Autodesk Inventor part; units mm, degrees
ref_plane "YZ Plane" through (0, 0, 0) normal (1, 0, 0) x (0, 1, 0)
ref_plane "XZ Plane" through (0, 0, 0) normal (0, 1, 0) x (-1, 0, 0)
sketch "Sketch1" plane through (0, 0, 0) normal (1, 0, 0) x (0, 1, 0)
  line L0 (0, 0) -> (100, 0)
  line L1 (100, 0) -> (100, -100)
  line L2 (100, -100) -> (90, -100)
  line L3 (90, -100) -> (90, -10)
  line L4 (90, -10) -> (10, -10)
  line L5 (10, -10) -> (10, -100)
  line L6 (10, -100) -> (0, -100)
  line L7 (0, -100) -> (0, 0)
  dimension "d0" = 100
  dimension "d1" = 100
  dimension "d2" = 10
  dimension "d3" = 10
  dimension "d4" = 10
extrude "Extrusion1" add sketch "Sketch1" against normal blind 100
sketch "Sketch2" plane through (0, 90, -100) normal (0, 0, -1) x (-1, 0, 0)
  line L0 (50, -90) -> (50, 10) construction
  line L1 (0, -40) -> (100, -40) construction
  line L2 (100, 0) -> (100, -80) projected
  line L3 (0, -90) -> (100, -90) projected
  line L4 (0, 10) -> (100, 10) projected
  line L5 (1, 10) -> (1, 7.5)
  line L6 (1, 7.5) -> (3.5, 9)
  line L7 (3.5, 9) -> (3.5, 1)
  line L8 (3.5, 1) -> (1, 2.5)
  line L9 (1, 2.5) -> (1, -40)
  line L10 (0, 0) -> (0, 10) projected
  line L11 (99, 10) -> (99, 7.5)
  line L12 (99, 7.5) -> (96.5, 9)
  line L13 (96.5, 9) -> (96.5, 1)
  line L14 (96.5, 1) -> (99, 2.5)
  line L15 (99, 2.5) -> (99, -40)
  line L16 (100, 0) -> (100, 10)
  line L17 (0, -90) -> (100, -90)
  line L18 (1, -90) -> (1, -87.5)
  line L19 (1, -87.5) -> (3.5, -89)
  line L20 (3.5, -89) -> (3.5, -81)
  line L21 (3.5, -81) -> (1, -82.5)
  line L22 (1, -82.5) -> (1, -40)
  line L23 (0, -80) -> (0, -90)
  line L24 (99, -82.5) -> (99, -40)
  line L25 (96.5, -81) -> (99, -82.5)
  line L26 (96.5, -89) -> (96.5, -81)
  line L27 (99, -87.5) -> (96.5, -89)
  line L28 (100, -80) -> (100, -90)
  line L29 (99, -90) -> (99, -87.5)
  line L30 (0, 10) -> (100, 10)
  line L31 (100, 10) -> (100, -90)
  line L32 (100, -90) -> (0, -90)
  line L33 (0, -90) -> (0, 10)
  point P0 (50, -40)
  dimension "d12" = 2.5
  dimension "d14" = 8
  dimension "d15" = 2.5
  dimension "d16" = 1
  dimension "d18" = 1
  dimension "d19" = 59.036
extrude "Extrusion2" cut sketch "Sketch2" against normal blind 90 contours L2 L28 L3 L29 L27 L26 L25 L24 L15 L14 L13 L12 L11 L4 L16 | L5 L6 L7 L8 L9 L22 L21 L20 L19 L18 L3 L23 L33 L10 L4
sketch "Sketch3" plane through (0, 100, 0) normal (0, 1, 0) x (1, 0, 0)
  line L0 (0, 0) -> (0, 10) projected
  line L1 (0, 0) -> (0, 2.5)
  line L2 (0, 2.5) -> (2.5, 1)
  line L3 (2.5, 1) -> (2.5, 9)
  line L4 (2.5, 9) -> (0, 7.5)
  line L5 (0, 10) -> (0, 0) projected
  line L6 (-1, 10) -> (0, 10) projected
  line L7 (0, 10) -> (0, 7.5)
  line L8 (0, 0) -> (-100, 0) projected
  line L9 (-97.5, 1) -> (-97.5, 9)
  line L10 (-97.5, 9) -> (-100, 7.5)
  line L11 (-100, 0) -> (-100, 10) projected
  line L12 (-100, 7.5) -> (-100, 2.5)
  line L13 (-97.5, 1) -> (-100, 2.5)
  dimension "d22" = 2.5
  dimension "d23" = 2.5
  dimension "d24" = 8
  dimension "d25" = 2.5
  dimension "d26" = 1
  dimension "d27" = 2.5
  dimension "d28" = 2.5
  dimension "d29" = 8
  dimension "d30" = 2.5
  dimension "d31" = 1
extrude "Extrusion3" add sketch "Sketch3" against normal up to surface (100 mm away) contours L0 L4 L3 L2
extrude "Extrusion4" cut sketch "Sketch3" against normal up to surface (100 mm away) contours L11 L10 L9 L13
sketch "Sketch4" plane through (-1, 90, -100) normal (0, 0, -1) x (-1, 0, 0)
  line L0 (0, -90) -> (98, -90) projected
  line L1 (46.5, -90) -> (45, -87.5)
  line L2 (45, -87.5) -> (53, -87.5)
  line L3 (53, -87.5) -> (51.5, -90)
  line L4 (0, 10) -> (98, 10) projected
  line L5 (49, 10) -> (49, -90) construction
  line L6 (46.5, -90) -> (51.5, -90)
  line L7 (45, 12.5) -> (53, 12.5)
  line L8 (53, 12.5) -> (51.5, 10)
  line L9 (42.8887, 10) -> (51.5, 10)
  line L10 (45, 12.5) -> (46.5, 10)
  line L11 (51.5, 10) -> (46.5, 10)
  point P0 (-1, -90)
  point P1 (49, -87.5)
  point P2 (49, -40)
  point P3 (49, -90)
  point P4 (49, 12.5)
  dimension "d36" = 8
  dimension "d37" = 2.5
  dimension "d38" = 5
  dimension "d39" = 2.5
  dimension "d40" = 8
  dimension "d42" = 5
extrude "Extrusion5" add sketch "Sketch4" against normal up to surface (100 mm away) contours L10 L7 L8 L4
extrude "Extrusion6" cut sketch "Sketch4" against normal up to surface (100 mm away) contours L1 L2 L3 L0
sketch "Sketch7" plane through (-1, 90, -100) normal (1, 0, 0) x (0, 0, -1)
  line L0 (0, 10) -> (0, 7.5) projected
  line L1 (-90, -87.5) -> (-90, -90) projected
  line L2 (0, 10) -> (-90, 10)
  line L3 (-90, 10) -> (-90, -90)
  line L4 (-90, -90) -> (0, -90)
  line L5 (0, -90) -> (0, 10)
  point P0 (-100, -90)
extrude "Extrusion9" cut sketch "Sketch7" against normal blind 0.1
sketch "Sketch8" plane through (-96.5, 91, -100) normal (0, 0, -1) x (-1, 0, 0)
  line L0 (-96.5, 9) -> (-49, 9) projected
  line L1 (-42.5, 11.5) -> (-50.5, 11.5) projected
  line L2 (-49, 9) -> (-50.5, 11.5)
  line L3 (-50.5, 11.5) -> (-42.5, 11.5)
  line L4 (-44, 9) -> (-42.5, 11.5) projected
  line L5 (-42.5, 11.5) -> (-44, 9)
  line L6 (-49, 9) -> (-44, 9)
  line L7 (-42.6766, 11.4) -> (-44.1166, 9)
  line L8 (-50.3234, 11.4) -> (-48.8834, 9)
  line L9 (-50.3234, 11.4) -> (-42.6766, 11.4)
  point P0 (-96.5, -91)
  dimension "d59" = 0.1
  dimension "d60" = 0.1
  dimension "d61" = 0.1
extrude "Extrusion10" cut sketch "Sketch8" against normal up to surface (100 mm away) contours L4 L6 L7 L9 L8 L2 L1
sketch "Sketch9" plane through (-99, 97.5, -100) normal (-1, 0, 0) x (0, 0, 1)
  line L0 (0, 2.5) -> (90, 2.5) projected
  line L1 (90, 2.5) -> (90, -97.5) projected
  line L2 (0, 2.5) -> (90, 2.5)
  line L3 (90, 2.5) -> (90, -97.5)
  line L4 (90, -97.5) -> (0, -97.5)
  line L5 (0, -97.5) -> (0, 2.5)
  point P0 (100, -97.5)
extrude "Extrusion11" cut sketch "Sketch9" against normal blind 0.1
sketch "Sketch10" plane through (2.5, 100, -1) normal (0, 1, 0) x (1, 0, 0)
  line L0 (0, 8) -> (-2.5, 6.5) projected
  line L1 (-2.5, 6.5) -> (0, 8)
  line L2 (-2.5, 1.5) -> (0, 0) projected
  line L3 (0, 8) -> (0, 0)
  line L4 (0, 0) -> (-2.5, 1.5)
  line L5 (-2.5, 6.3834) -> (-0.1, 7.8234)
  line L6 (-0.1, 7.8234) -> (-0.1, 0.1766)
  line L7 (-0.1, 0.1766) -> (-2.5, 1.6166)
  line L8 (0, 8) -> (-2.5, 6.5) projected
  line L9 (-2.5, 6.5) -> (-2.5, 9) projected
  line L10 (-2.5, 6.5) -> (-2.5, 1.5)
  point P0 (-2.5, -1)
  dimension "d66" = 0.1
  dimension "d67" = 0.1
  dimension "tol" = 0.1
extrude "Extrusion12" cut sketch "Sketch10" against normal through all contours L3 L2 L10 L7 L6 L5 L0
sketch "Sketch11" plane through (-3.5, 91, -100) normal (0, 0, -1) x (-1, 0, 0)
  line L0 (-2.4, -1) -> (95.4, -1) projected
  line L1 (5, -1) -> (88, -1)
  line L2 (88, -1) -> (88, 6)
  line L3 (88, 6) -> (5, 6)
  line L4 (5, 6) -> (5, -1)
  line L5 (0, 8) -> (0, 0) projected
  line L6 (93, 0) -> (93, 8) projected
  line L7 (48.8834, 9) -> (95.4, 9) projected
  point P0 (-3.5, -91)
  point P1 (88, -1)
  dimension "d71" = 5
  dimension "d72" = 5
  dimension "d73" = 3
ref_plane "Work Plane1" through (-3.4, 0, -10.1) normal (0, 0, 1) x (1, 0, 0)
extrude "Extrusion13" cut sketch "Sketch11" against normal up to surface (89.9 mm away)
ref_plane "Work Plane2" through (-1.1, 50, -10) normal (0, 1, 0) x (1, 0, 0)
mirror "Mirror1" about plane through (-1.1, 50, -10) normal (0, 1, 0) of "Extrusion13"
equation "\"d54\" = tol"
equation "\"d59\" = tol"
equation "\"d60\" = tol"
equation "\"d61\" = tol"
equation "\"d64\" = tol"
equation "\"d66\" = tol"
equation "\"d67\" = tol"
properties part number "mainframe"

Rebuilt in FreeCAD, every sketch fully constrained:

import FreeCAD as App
import Part
import Sketcher

V = App.Vector
Q = App.Units.Quantity


def add_polygon(sketch, points):
    """Adds a closed chain of lines whose ends are joined by coincident constraints."""
    first, n = sketch.GeometryCount, len(points)
    for a, b in zip(points, points[1:] + points[:1]):
        sketch.addGeometry(Part.LineSegment(App.Vector(*a, 0), App.Vector(*b, 0)), False)
    for i in range(n):
        sketch.addConstraint(Sketcher.Constraint("Coincident", first + i, 2, first + (i + 1) % n, 1))

doc = App.newDocument("Part")
body = doc.addObject("PartDesign::Body", "Body")

# Sketch on YZ plane
sketch1 = body.newObject("Sketcher::SketchObject", "Sketch")
sketch1.AttachmentSupport = (doc.getObject("YZ_Plane"), [""])
sketch1.MapMode = "FlatFace"
add_polygon(sketch1, [(100, 0), (0, 0), (0, -100), (10, -100), (10, -10), (90, -10), (90, -100), (100, -100)])  # lines 0-7
sketch1.addConstraint([
    Sketcher.Constraint("Horizontal", 0),
    Sketcher.Constraint("Vertical", 1),
    Sketcher.Constraint("Horizontal", 2),
    Sketcher.Constraint("Vertical", 3),
    Sketcher.Constraint("Horizontal", 4),
    Sketcher.Constraint("Vertical", 5),
    Sketcher.Constraint("Horizontal", 6),
    Sketcher.Constraint("Vertical", 7),
    Sketcher.Constraint("Coincident", 0, 2, -1, 1),
    Sketcher.Constraint("Horizontal", 2, 2, 5, 2),
    Sketcher.Constraint("Equal", 2, 6),
    Sketcher.Constraint("Equal", 0, 1),
    Sketcher.Constraint("DistanceX", 0, 2, 0, 1, Q("100 mm")),
    Sketcher.Constraint("DistanceX", 2, 1, 2, 2, Q("10 mm")),
    Sketcher.Constraint("DistanceY", 3, 2, -1, 1, Q("10 mm")),
])
pad1 = body.newObject("PartDesign::Pad", "Pad")
pad1.Profile = sketch1
pad1.Length = 100
pad1.Reversed = True

# Sketch on XY plane
sketch2 = body.newObject("Sketcher::SketchObject", "Sketch001")
sketch2.AttachmentSupport = (doc.getObject("XY_Plane"), [""])
sketch2.MapMode = "FlatFace"
sketch2.AttachmentOffset = App.Placement(V(0, 0, -100), App.Rotation())
add_polygon(sketch2, [(-100, 0), (-100, 100), (-99, 100), (-99, 97.5), (-96.5, 99), (-96.5, 91), (-99, 92.5), (-99, 7.5), (-96.5, 9), (-96.5, 1), (-99, 2.5), (-99, 0)])  # lines 0-11
add_polygon(sketch2, [(-1, 97.5), (-1, 100), (0, 100), (0, 0), (-1, 0), (-1, 2.5), (-3.5, 1), (-3.5, 9), (-1, 7.5), (-1, 92.5), (-3.5, 91), (-3.5, 99)])  # lines 12-23
sketch2.addConstraint([
    Sketcher.Constraint("Vertical", 0),
    Sketcher.Constraint("Horizontal", 1),
    Sketcher.Constraint("Vertical", 2),
    Sketcher.Constraint("Vertical", 4),
    Sketcher.Constraint("Vertical", 6),
    Sketcher.Constraint("Vertical", 8),
    Sketcher.Constraint("Vertical", 10),
    Sketcher.Constraint("Horizontal", 11),
    Sketcher.Constraint("Vertical", 12),
    Sketcher.Constraint("Horizontal", 13),
    Sketcher.Constraint("Vertical", 14),
    Sketcher.Constraint("Horizontal", 15),
    Sketcher.Constraint("Vertical", 16),
    Sketcher.Constraint("Vertical", 18),
    Sketcher.Constraint("Vertical", 20),
    Sketcher.Constraint("Vertical", 22),
    Sketcher.Constraint("Coincident", 14, 2, -1, 1),
    Sketcher.Constraint("PointOnObject", 10, 2, -1),
    Sketcher.Constraint("Parallel", 3, 7),
    Sketcher.Constraint("Parallel", 5, 9),
    Sketcher.Constraint("Parallel", 7, 17),
    Sketcher.Constraint("Parallel", 9, 19),
    Sketcher.Constraint("Parallel", 17, 21),
    Sketcher.Constraint("Parallel", 19, 23),
    Sketcher.Constraint("Horizontal", 1, 2, 12, 2),
    Sketcher.Constraint("Horizontal", 9, 2, 16, 2),
    Sketcher.Constraint("Horizontal", 8, 2, 17, 2),
    Sketcher.Constraint("Horizontal", 7, 2, 18, 2),
    Sketcher.Constraint("Horizontal", 6, 2, 19, 2),
    Sketcher.Constraint("Horizontal", 5, 2, 20, 2),
    Sketcher.Constraint("Horizontal", 4, 2, 21, 2),
    Sketcher.Constraint("Horizontal", 3, 2, 22, 2),
    Sketcher.Constraint("Horizontal", 2, 2, 23, 2),
    Sketcher.Constraint("Vertical", 2, 2, 5, 2),
    Sketcher.Constraint("Vertical", 4, 2, 7, 2),
    Sketcher.Constraint("Vertical", 6, 2, 9, 2),
    Sketcher.Constraint("Vertical", 12, 2, 15, 2),
    Sketcher.Constraint("Equal", 11, 13),
    Sketcher.Constraint("Equal", 4, 8),
    Sketcher.Constraint("Equal", 2, 10),
    Sketcher.Constraint("DistanceX", 1, 1, 1, 2, Q("1 mm")),
    Sketcher.Constraint("DistanceY", 4, 2, 4, 1, Q("8 mm")),
    Sketcher.Constraint("DistanceY", 2, 2, 2, 1, Q("2.5 mm")),
    Sketcher.Constraint("DistanceY", -1, 1, 8, 2, Q("1 mm")),
    Sketcher.Constraint("DistanceX", 1, 2, 3, 2, Q("2.5 mm")),
    Sketcher.Constraint("DistanceY", 0, 1, 0, 2, Q("100 mm")),
    Sketcher.Constraint("DistanceX", 0, 2, -1, 1, Q("100 mm")),
])
pocket1 = body.newObject("PartDesign::Pocket", "Pocket")
pocket1.Profile = sketch2
pocket1.Length = 90
pocket1.Reversed = True

# Sketch on XZ plane
sketch3 = body.newObject("Sketcher::SketchObject", "Sketch002")
sketch3.AttachmentSupport = (doc.getObject("XZ_Plane"), [""])
sketch3.MapMode = "FlatFace"
sketch3.AttachmentOffset = App.Placement(V(0, 0, -100), App.Rotation())
add_polygon(sketch3, [(0, -7.5), (0, -2.5), (2.5, -1), (2.5, -9)])  # lines 0-3
sketch3.addConstraint([
    Sketcher.Constraint("Vertical", 0),
    Sketcher.Constraint("Vertical", 2),
    Sketcher.Constraint("PointOnObject", 0, 2, -2),
    Sketcher.Constraint("Equal", 1, 3),
    Sketcher.Constraint("DistanceY", 2, 2, 2, 1, Q("8 mm")),
    Sketcher.Constraint("DistanceY", 1, 2, -1, 1, Q("1 mm")),
    Sketcher.Constraint("DistanceY", 0, 2, -1, 1, Q("2.5 mm")),
    Sketcher.Constraint("DistanceX", -1, 1, 1, 2, Q("2.5 mm")),
])
pad2 = body.newObject("PartDesign::Pad", "Pad001")
pad2.Profile = sketch3
pad2.Length = 100

# Sketch on XZ plane
sketch4 = body.newObject("Sketcher::SketchObject", "Sketch003")
sketch4.AttachmentSupport = (doc.getObject("XZ_Plane"), [""])
sketch4.MapMode = "FlatFace"
sketch4.AttachmentOffset = App.Placement(V(0, 0, -100), App.Rotation())
add_polygon(sketch4, [(-100, -7.5), (-100, -2.5), (-97.5, -1), (-97.5, -9)])  # lines 0-3
sketch4.addConstraint([
    Sketcher.Constraint("Vertical", 0),
    Sketcher.Constraint("Vertical", 2),
    Sketcher.Constraint("Equal", 1, 3),
    Sketcher.Constraint("DistanceY", 2, 2, 2, 1, Q("8 mm")),
    Sketcher.Constraint("DistanceY", 1, 2, -1, 1, Q("1 mm")),
    Sketcher.Constraint("DistanceY", 0, 2, -1, 1, Q("2.5 mm")),
    Sketcher.Constraint("DistanceX", 0, 2, 1, 2, Q("2.5 mm")),
    Sketcher.Constraint("DistanceX", 0, 2, -1, 1, Q("100 mm")),
])
pocket2 = body.newObject("PartDesign::Pocket", "Pocket001")
pocket2.Profile = sketch4
pocket2.Length = 100
pocket2.Reversed = True

# Sketch on XY plane
sketch5 = body.newObject("Sketcher::SketchObject", "Sketch004")
sketch5.AttachmentSupport = (doc.getObject("XY_Plane"), [""])
sketch5.MapMode = "FlatFace"
sketch5.AttachmentOffset = App.Placement(V(0, 0, -100), App.Rotation())
add_polygon(sketch5, [(-46, 102.5), (-47.5, 100), (-52.5, 100), (-54, 102.5)])  # lines 0-3
sketch5.addConstraint([
    Sketcher.Constraint("Horizontal", 1),
    Sketcher.Constraint("Horizontal", 3),
    Sketcher.Constraint("Equal", 0, 2),
    Sketcher.Constraint("DistanceX", 1, 2, 1, 1, Q("5 mm")),
    Sketcher.Constraint("DistanceX", 3, 1, 3, 2, Q("8 mm")),
    Sketcher.Constraint("DistanceY", 1, 2, 2, 2, Q("2.5 mm")),
    Sketcher.Constraint("DistanceY", -1, 1, 0, 2, Q("100 mm")),
    Sketcher.Constraint("DistanceX", 2, 2, -1, 1, Q("54 mm")),
])
pad3 = body.newObject("PartDesign::Pad", "Pad002")
pad3.Profile = sketch5
pad3.Length = 100

# Sketch on XY plane
sketch6 = body.newObject("Sketcher::SketchObject", "Sketch005")
sketch6.AttachmentSupport = (doc.getObject("XY_Plane"), [""])
sketch6.MapMode = "FlatFace"
sketch6.AttachmentOffset = App.Placement(V(0, 0, -100), App.Rotation())
add_polygon(sketch6, [(-46, 2.5), (-47.5, 0), (-52.5, 0), (-54, 2.5)])  # lines 0-3
sketch6.addConstraint([
    Sketcher.Constraint("Horizontal", 1),
    Sketcher.Constraint("Horizontal", 3),
    Sketcher.Constraint("PointOnObject", 0, 2, -1),
    Sketcher.Constraint("Equal", 0, 2),
    Sketcher.Constraint("DistanceX", 1, 2, 1, 1, Q("5 mm")),
    Sketcher.Constraint("DistanceX", 3, 1, 3, 2, Q("8 mm")),
    Sketcher.Constraint("DistanceY", -1, 1, 2, 2, Q("2.5 mm")),
    Sketcher.Constraint("DistanceX", 2, 2, -1, 1, Q("54 mm")),
])
pocket3 = body.newObject("PartDesign::Pocket", "Pocket002")
pocket3.Profile = sketch6
pocket3.Length = 100
pocket3.Reversed = True

# Sketch on YZ plane
sketch7 = body.newObject("Sketcher::SketchObject", "Sketch006")
sketch7.AttachmentSupport = (doc.getObject("YZ_Plane"), [""])
sketch7.MapMode = "FlatFace"
sketch7.AttachmentOffset = App.Placement(V(0, 0, -1), App.Rotation())
add_polygon(sketch7, [(0, -100), (100, -100), (100, -10), (0, -10)])  # lines 0-3
sketch7.addConstraint([
    Sketcher.Constraint("Horizontal", 0),
    Sketcher.Constraint("Vertical", 1),
    Sketcher.Constraint("Horizontal", 2),
    Sketcher.Constraint("Vertical", 3),
    Sketcher.Constraint("PointOnObject", 2, 2, -2),
    Sketcher.Constraint("DistanceX", 0, 1, 0, 2, Q("100 mm")),
    Sketcher.Constraint("DistanceY", 1, 1, 1, 2, Q("90 mm")),
    Sketcher.Constraint("DistanceY", 0, 2, -1, 1, Q("100 mm")),
])
pocket4 = body.newObject("PartDesign::Pocket", "Pocket003")
pocket4.Profile = sketch7
pocket4.Length = 0.1

# Sketch on XY plane
sketch8 = body.newObject("Sketcher::SketchObject", "Sketch007")
sketch8.AttachmentSupport = (doc.getObject("XY_Plane"), [""])
sketch8.MapMode = "FlatFace"
sketch8.AttachmentOffset = App.Placement(V(0, 0, -100), App.Rotation())
add_polygon(sketch8, [(-52.5, 100), (-54, 102.5), (-46, 102.5), (-47.5, 100), (-47.62, 100), (-46.18, 102.4), (-53.82, 102.4), (-52.38, 100)])  # lines 0-7
sketch8.addConstraint([
    Sketcher.Constraint("Horizontal", 1),
    Sketcher.Constraint("Horizontal", 3),
    Sketcher.Constraint("Horizontal", 5),
    Sketcher.Constraint("Horizontal", 7),
    Sketcher.Constraint("Parallel", 2, 4),
    Sketcher.Constraint("Parallel", 0, 6),
    Sketcher.Constraint("Horizontal", 3, 2, 6, 2),
    Sketcher.Constraint("Equal", 3, 7),
    Sketcher.Constraint("Equal", 0, 2),
    Sketcher.Constraint("DistanceY", 4, 2, 1, 2, Q("0.1 mm")),
    Sketcher.Constraint("DistanceX", 1, 1, 1, 2, Q("8 mm")),
    Sketcher.Constraint("DistanceX", 0, 2, -1, 1, Q("54 mm")),
    Sketcher.Constraint("DistanceY", -1, 1, 2, 2, Q("100 mm")),
    Sketcher.Constraint("DistanceX", 7, 2, 2, 2, Q("5 mm")),
    Sketcher.Constraint("DistanceY", -1, 1, 0, 2, Q("102.5 mm")),
    Sketcher.Constraint("DistanceX", 3, 2, 3, 1, Q("0.1166 mm")),
])
pocket5 = body.newObject("PartDesign::Pocket", "Pocket004")
pocket5.Profile = sketch8
pocket5.Length = 100
pocket5.Reversed = True

# Sketch on YZ plane
sketch9 = body.newObject("Sketcher::SketchObject", "Sketch008")
sketch9.AttachmentSupport = (doc.getObject("YZ_Plane"), [""])
sketch9.MapMode = "FlatFace"
sketch9.AttachmentOffset = App.Placement(V(0, 0, -99), App.Rotation())
add_polygon(sketch9, [(100, -10), (100, -100), (0, -100), (0, -10)])  # lines 0-3
sketch9.addConstraint([
    Sketcher.Constraint("Vertical", 0),
    Sketcher.Constraint("Horizontal", 1),
    Sketcher.Constraint("Vertical", 2),
    Sketcher.Constraint("Horizontal", 3),
    Sketcher.Constraint("PointOnObject", 1, 2, -2),
    Sketcher.Constraint("DistanceX", 1, 2, 1, 1, Q("100 mm")),
    Sketcher.Constraint("DistanceY", 0, 2, 0, 1, Q("90 mm")),
    Sketcher.Constraint("DistanceY", 0, 2, -1, 1, Q("100 mm")),
])
pocket6 = body.newObject("PartDesign::Pocket", "Pocket005")
pocket6.Profile = sketch9
pocket6.Length = 0.1
pocket6.Reversed = True

# Sketch on XZ plane
sketch10 = body.newObject("Sketcher::SketchObject", "Sketch009")
sketch10.AttachmentSupport = (doc.getObject("XZ_Plane"), [""])
sketch10.MapMode = "FlatFace"
sketch10.AttachmentOffset = App.Placement(V(0, 0, -100), App.Rotation())
add_polygon(sketch10, [(2.5, -1), (2.5, -9), (0, -7.5), (0, -7.38), (2.4, -8.82), (2.4, -1.18), (0, -2.62), (0, -2.5)])  # lines 0-7
sketch10.addConstraint([
    Sketcher.Constraint("Vertical", 0),
    Sketcher.Constraint("Vertical", 2),
    Sketcher.Constraint("Vertical", 4),
    Sketcher.Constraint("Vertical", 6),
    Sketcher.Constraint("PointOnObject", 1, 2, -2),
    Sketcher.Constraint("PointOnObject", 5, 2, -2),
    Sketcher.Constraint("Parallel", 1, 3),
    Sketcher.Constraint("Parallel", 5, 7),
    Sketcher.Constraint("Equal", 2, 6),
    Sketcher.Constraint("Equal", 3, 5),
    Sketcher.Constraint("DistanceX", 3, 2, 0, 2, Q("0.1 mm")),
    Sketcher.Constraint("DistanceY", 0, 2, 0, 1, Q("8 mm")),
    Sketcher.Constraint("DistanceY", 0, 2, -1, 1, Q("9 mm")),
    Sketcher.Constraint("DistanceY", 1, 2, 6, 2, Q("5 mm")),
    Sketcher.Constraint("DistanceX", -1, 1, 0, 2, Q("2.5 mm")),
    Sketcher.Constraint("DistanceY", 2, 1, 2, 2, Q("0.1166 mm")),
])
pocket7 = body.newObject("PartDesign::Pocket", "Pocket006")
pocket7.Profile = sketch10
pocket7.Type = "ThroughAll"
pocket7.Reversed = True

# Sketch on XY plane
sketch11 = body.newObject("Sketcher::SketchObject", "Sketch010")
sketch11.AttachmentSupport = (doc.getObject("XY_Plane"), [""])
sketch11.MapMode = "FlatFace"
sketch11.AttachmentOffset = App.Placement(V(0, 0, -100), App.Rotation())
add_polygon(sketch11, [(-8, 97), (-8, 90), (-92, 90), (-92, 97)])  # lines 0-3
sketch11.addConstraint([
    Sketcher.Constraint("Vertical", 0),
    Sketcher.Constraint("Horizontal", 1),
    Sketcher.Constraint("Vertical", 2),
    Sketcher.Constraint("Horizontal", 3),
    Sketcher.Constraint("DistanceX", 1, 2, 1, 1, Q("83 mm")),
    Sketcher.Constraint("DistanceY", 0, 2, 0, 1, Q("7 mm")),
    Sketcher.Constraint("DistanceY", -1, 1, 0, 2, Q("90 mm")),
    Sketcher.Constraint("DistanceX", 0, 2, -1, 1, Q("8.5 mm")),
])
pocket8 = body.newObject("PartDesign::Pocket", "Pocket007")
pocket8.Profile = sketch11
pocket8.Length = 89.9
pocket8.Reversed = True
doc.recompute()

datumplane = body.newObject("PartDesign::Plane", "DatumPlane")
datumplane.AttachmentSupport = (doc.getObject("XZ_Plane"), [""])
datumplane.MapMode = "FlatFace"
datumplane.AttachmentOffset = App.Placement(V(0, 0, -50), App.Rotation())
mirrored = body.newObject("PartDesign::Mirrored", "Mirrored")
mirrored.Originals = [pocket8]
mirrored.MirrorPlane = (datumplane, [""])
body.Tip = mirrored

doc.recompute()
